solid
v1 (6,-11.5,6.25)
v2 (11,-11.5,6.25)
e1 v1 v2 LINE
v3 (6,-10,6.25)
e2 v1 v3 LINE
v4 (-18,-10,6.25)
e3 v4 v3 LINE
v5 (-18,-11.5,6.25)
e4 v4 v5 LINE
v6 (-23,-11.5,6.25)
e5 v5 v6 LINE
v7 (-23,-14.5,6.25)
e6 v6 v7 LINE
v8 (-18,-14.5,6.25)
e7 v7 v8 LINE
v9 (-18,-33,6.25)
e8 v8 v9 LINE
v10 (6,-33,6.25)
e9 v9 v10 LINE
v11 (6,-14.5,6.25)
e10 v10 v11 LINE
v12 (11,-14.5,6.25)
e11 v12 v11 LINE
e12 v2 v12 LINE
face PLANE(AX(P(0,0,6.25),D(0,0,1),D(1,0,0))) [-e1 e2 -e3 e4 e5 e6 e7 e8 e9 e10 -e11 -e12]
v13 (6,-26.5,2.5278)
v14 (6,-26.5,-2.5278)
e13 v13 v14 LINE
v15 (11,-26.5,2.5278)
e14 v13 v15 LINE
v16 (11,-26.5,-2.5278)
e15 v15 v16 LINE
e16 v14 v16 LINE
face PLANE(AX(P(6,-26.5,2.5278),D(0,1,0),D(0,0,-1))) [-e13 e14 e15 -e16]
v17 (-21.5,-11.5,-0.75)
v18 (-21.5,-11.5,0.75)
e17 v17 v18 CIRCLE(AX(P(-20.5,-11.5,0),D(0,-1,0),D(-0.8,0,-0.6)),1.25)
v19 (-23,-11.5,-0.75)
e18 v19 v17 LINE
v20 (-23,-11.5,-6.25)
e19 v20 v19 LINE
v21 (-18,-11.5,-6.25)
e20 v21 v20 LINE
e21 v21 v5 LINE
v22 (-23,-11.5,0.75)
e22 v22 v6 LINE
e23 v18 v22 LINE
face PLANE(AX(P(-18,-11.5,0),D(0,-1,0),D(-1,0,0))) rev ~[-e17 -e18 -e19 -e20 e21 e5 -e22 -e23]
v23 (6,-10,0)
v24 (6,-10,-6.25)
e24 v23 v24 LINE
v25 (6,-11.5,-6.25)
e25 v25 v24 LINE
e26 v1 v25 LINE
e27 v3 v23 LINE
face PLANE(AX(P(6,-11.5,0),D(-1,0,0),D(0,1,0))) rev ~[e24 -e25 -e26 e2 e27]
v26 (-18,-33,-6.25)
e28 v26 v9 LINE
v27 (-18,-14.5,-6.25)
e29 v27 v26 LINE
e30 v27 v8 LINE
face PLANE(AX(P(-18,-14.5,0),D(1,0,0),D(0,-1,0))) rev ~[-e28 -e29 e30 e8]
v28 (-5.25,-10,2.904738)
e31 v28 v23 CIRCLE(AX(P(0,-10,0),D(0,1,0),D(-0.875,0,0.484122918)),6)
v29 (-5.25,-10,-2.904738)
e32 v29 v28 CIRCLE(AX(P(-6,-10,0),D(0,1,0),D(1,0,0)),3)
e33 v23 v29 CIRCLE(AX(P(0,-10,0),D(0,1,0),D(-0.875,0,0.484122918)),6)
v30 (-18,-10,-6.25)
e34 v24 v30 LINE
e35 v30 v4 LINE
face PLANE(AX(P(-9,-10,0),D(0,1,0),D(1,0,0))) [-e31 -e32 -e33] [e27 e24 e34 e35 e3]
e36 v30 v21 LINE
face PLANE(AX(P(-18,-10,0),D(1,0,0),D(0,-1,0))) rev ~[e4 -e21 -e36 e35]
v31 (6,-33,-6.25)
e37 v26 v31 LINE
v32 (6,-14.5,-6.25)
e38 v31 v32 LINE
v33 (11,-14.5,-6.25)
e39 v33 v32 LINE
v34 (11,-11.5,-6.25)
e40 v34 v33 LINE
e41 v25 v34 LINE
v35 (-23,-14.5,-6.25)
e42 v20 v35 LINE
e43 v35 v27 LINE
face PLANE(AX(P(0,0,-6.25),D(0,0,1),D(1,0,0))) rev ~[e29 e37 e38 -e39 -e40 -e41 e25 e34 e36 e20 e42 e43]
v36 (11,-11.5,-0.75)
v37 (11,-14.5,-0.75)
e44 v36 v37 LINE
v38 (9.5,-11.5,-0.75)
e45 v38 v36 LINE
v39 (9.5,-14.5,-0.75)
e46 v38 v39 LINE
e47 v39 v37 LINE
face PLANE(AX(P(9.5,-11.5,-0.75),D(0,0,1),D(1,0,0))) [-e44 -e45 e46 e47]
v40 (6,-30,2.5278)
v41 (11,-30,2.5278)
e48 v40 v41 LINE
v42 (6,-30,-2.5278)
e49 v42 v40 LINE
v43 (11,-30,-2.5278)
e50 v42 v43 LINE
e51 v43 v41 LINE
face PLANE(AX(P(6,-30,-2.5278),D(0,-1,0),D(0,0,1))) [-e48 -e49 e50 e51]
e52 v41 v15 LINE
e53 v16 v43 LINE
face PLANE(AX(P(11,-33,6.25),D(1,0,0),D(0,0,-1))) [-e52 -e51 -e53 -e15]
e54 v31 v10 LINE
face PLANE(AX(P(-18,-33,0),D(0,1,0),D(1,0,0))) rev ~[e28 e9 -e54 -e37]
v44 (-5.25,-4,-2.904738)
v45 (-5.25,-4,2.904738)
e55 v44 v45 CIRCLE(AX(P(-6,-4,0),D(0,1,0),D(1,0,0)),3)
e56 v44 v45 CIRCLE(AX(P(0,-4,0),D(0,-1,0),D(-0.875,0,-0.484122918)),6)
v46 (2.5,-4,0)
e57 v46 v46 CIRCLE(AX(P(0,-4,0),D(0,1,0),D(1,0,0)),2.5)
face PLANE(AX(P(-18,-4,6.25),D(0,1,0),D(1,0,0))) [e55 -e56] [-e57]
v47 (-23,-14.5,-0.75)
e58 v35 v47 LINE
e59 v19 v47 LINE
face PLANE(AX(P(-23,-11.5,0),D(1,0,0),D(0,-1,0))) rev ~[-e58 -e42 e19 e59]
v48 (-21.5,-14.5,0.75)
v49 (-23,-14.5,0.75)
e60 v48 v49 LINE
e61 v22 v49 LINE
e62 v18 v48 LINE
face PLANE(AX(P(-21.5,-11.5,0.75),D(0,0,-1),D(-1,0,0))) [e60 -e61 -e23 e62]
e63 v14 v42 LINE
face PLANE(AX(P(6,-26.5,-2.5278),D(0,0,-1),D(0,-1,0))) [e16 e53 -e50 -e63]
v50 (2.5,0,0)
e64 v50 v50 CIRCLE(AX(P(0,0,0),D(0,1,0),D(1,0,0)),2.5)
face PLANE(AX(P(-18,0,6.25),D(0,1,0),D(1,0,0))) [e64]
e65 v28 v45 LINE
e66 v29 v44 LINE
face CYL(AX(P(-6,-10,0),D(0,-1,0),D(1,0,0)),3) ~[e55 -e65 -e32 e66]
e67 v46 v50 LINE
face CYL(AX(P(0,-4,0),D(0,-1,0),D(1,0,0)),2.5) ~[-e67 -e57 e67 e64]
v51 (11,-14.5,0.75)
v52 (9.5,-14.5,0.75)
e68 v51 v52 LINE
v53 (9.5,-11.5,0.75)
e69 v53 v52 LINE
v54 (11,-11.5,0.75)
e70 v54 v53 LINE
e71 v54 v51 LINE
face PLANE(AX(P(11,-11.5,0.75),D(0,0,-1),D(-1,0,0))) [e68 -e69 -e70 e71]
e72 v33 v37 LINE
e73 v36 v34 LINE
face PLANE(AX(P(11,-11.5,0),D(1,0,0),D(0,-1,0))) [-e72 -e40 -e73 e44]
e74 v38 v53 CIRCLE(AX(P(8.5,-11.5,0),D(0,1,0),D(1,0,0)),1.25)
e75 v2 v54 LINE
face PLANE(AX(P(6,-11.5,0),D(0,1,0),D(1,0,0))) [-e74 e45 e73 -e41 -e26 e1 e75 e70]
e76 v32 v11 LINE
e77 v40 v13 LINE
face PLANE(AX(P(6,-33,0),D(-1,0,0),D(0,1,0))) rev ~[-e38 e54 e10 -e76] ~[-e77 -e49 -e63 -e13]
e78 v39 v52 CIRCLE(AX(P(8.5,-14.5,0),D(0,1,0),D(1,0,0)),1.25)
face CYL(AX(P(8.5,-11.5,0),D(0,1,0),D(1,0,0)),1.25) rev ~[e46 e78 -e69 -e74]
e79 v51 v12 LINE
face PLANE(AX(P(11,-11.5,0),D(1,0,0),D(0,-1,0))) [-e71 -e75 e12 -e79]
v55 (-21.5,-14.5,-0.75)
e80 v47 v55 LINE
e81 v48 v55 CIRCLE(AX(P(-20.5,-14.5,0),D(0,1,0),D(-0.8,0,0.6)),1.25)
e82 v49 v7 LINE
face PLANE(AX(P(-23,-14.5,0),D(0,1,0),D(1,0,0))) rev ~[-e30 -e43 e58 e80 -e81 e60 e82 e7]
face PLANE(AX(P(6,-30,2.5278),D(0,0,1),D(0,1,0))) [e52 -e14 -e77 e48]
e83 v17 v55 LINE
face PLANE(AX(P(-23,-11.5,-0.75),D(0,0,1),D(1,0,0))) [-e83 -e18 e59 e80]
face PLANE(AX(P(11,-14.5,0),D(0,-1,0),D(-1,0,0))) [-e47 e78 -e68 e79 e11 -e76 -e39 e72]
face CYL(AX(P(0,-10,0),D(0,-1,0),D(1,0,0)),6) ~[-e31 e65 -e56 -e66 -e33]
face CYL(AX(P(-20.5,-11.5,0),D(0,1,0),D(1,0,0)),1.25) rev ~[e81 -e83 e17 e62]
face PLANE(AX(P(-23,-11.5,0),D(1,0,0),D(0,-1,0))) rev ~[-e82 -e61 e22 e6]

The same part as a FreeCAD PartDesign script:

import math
import FreeCAD as App
import Part
import Sketcher

V = App.Vector
Q = App.Units.Quantity


def add_polygon(sketch, points):
    """Adds a closed chain of lines whose ends are joined by coincident constraints."""
    first, n = sketch.GeometryCount, len(points)
    for a, b in zip(points, points[1:] + points[:1]):
        sketch.addGeometry(Part.LineSegment(App.Vector(*a, 0), App.Vector(*b, 0)), False)
    for i in range(n):
        sketch.addConstraint(Sketcher.Constraint("Coincident", first + i, 2, first + (i + 1) % n, 1))

doc = App.newDocument("Part")
body = doc.addObject("PartDesign::Body", "Body")

# Sketch on XY plane
sketch1 = body.newObject("Sketcher::SketchObject", "Sketch")
sketch1.AttachmentSupport = (doc.getObject("XY_Plane"), [""])
sketch1.MapMode = "FlatFace"
add_polygon(sketch1, [(6, -10), (-18, -10), (-18, -11.5), (-23, -11.5), (-23, -14.5), (-18, -14.5), (-18, -33), (6, -33), (6, -14.5), (11, -14.5), (11, -11.5), (6, -11.5)])  # lines 0-11
sketch1.addConstraint([
    Sketcher.Constraint("Horizontal", 0),
    Sketcher.Constraint("Vertical", 1),
    Sketcher.Constraint("Horizontal", 2),
    Sketcher.Constraint("Vertical", 3),
    Sketcher.Constraint("Horizontal", 4),
    Sketcher.Constraint("Vertical", 5),
    Sketcher.Constraint("Horizontal", 6),
    Sketcher.Constraint("Vertical", 7),
    Sketcher.Constraint("Horizontal", 8),
    Sketcher.Constraint("Vertical", 9),
    Sketcher.Constraint("Horizontal", 10),
    Sketcher.Constraint("Vertical", 11),
    Sketcher.Constraint("Horizontal", 4, 2, 7, 2),
    Sketcher.Constraint("Horizontal", 2, 2, 9, 2),
    Sketcher.Constraint("Vertical", 1, 2, 4, 2),
    Sketcher.Constraint("Vertical", 7, 2, 10, 2),
    Sketcher.Constraint("Equal", 4, 8),
    Sketcher.Constraint("DistanceX", 0, 2, 0, 1, Q("24 mm")),
    Sketcher.Constraint("DistanceX", 2, 2, 2, 1, Q("5 mm")),
    Sketcher.Constraint("DistanceY", 3, 2, 3, 1, Q("3 mm")),
    Sketcher.Constraint("DistanceY", 1, 2, 1, 1, Q("1.5 mm")),
    Sketcher.Constraint("DistanceY", 5, 2, 5, 1, Q("18.5 mm")),
    Sketcher.Constraint("DistanceX", -1, 1, 6, 2, Q("6 mm")),
    Sketcher.Constraint("DistanceY", 0, 2, -1, 1, Q("10 mm")),
])
pad1 = body.newObject("PartDesign::Pad", "Pad")
pad1.Profile = sketch1
pad1.Length = 12.5
pad1.Midplane = True

# Sketch on XZ plane
sketch2 = body.newObject("Sketcher::SketchObject", "Sketch001")
sketch2.AttachmentSupport = (doc.getObject("XZ_Plane"), [""])
sketch2.MapMode = "FlatFace"
sketch2.AttachmentOffset = App.Placement(V(0, 0, 10), App.Rotation())
sketch2.addGeometry([
    Part.ArcOfCircle(Part.Circle(V(0, 0, 0), V(0, 0, 1), 6), math.radians(-151), math.radians(151)),
    Part.ArcOfCircle(Part.Circle(V(-6, 0, 0), V(0, 0, 1), 3), math.radians(76), math.radians(284)),
], False)
sketch2.addConstraint([
    Sketcher.Constraint("Coincident", 0, 1, 1, 2),
    Sketcher.Constraint("Coincident", 1, 1, 0, 2),
    Sketcher.Constraint("Coincident", 0, 3, -1, 1),
    Sketcher.Constraint("PointOnObject", 1, 3, -1),
    Sketcher.Constraint("Radius", 0, Q("6 mm")),
    Sketcher.Constraint("Radius", 1, Q("3 mm")),
    Sketcher.Constraint("DistanceX", 1, 3, -1, 1, Q("6 mm")),
])
pad2 = body.newObject("PartDesign::Pad", "Pad001")
pad2.Profile = sketch2
pad2.Length = 6
pad2.Reversed = True

# Sketch on XZ plane
sketch3 = body.newObject("Sketcher::SketchObject", "Sketch002")
sketch3.AttachmentSupport = (doc.getObject("XZ_Plane"), [""])
sketch3.MapMode = "FlatFace"
sketch3.AttachmentOffset = App.Placement(V(0, 0, 4), App.Rotation())
sketch3.addGeometry(Part.Circle(V(0, 0, 0), V(0, 0, 1), 2.5), False)
sketch3.addConstraint([
    Sketcher.Constraint("Coincident", 0, 3, -1, 1),
    Sketcher.Constraint("Diameter", 0, Q("5 mm")),
])
pad3 = body.newObject("PartDesign::Pad", "Pad002")
pad3.Profile = sketch3
pad3.Length = 4
pad3.Reversed = True

# Sketch on YZ plane
sketch4 = body.newObject("Sketcher::SketchObject", "Sketch003")
sketch4.AttachmentSupport = (doc.getObject("YZ_Plane"), [""])
sketch4.MapMode = "FlatFace"
sketch4.AttachmentOffset = App.Placement(V(0, 0, 6), App.Rotation())
add_polygon(sketch4, [(-26.5, -2.5), (-26.5, 2.5), (-30, 2.5), (-30, -2.5)])  # lines 0-3
sketch4.addConstraint([
    Sketcher.Constraint("Vertical", 0),
    Sketcher.Constraint("Horizontal", 1),
    Sketcher.Constraint("Vertical", 2),
    Sketcher.Constraint("Horizontal", 3),
    Sketcher.Constraint("DistanceX", 1, 2, 1, 1, Q("3.5 mm")),
    Sketcher.Constraint("DistanceX", 1, 2, -1, 1, Q("30 mm")),
    Sketcher.Constraint("DistanceY", 0, 1, 0, 2, Q("5.0556 mm")),
    Sketcher.Constraint("DistanceY", -1, 1, 0, 2, Q("2.5278 mm")),
])
pad4 = body.newObject("PartDesign::Pad", "Pad003")
pad4.Profile = sketch4
pad4.Length = 5

# Sketch on XZ plane
sketch5 = body.newObject("Sketcher::SketchObject", "Sketch004")
sketch5.AttachmentSupport = (doc.getObject("XZ_Plane"), [""])
sketch5.MapMode = "FlatFace"
sketch5.AttachmentOffset = App.Placement(V(0, 0, 11.5), App.Rotation())
sketch5.addGeometry([
    Part.ArcOfCircle(Part.Circle(V(-20.5, 0, 0), V(0, 0, 1), 1.2), math.radians(-143), math.radians(143)),  # 0
    Part.LineSegment(V(-21.5, -0.8, 0), V(-23, -0.8, 0)),  # 1
    Part.LineSegment(V(-23, -0.8, 0), V(-23, 0.8, 0)),  # 2
    Part.LineSegment(V(-23, 0.8, 0), V(-21.5, 0.8, 0)),  # 3
    Part.LineSegment(V(9.5, 0.8, 0), V(11, 0.8, 0)),  # 4
    Part.LineSegment(V(11, 0.8, 0), V(11, -0.8, 0)),  # 5
    Part.LineSegment(V(11, -0.8, 0), V(9.5, -0.8, 0)),  # 6
    Part.ArcOfCircle(Part.Circle(V(8.5, 0, 0), V(0, 0, 1), 1.2), math.radians(37), math.radians(323)),  # 7
], False)
sketch5.addConstraint([
    Sketcher.Constraint("Coincident", 0, 1, 1, 1),
    Sketcher.Constraint("Coincident", 1, 2, 2, 1),
    Sketcher.Constraint("Coincident", 2, 2, 3, 1),
    Sketcher.Constraint("Coincident", 3, 2, 0, 2),
    Sketcher.Constraint("Coincident", 4, 2, 5, 1),
    Sketcher.Constraint("Coincident", 5, 2, 6, 1),
    Sketcher.Constraint("Coincident", 6, 2, 7, 2),
    Sketcher.Constraint("Coincident", 7, 1, 4, 1),
    Sketcher.Constraint("Horizontal", 1),
    Sketcher.Constraint("Vertical", 2),
    Sketcher.Constraint("Horizontal", 3),
    Sketcher.Constraint("Horizontal", 4),
    Sketcher.Constraint("Vertical", 5),
    Sketcher.Constraint("Horizontal", 6),
    Sketcher.Constraint("Equal", 0, 7),
    Sketcher.Constraint("Symmetric", 0, 1, 3, 2, -1),
    Sketcher.Constraint("Symmetric", 6, 2, 7, 1, -1),
    Sketcher.Constraint("Horizontal", 3, 2, 4, 2),
    Sketcher.Constraint("Equal", 3, 4),
    Sketcher.Constraint("Equal", 6, 2),
    Sketcher.Constraint("Radius", 0, Q("1.25 mm")),
    Sketcher.Constraint("DistanceX", 1, 2, 1, 1, Q("1.5 mm")),
    Sketcher.Constraint("DistanceX", 0, 3, 7, 3, Q("29 mm")),
    Sketcher.Constraint("DistanceX", 1, 2, -1, 1, Q("23 mm")),
])
pocket1 = body.newObject("PartDesign::Pocket", "Pocket")
pocket1.Profile = sketch5
pocket1.Length = 3
pocket1.Reversed = True

doc.recompute()
